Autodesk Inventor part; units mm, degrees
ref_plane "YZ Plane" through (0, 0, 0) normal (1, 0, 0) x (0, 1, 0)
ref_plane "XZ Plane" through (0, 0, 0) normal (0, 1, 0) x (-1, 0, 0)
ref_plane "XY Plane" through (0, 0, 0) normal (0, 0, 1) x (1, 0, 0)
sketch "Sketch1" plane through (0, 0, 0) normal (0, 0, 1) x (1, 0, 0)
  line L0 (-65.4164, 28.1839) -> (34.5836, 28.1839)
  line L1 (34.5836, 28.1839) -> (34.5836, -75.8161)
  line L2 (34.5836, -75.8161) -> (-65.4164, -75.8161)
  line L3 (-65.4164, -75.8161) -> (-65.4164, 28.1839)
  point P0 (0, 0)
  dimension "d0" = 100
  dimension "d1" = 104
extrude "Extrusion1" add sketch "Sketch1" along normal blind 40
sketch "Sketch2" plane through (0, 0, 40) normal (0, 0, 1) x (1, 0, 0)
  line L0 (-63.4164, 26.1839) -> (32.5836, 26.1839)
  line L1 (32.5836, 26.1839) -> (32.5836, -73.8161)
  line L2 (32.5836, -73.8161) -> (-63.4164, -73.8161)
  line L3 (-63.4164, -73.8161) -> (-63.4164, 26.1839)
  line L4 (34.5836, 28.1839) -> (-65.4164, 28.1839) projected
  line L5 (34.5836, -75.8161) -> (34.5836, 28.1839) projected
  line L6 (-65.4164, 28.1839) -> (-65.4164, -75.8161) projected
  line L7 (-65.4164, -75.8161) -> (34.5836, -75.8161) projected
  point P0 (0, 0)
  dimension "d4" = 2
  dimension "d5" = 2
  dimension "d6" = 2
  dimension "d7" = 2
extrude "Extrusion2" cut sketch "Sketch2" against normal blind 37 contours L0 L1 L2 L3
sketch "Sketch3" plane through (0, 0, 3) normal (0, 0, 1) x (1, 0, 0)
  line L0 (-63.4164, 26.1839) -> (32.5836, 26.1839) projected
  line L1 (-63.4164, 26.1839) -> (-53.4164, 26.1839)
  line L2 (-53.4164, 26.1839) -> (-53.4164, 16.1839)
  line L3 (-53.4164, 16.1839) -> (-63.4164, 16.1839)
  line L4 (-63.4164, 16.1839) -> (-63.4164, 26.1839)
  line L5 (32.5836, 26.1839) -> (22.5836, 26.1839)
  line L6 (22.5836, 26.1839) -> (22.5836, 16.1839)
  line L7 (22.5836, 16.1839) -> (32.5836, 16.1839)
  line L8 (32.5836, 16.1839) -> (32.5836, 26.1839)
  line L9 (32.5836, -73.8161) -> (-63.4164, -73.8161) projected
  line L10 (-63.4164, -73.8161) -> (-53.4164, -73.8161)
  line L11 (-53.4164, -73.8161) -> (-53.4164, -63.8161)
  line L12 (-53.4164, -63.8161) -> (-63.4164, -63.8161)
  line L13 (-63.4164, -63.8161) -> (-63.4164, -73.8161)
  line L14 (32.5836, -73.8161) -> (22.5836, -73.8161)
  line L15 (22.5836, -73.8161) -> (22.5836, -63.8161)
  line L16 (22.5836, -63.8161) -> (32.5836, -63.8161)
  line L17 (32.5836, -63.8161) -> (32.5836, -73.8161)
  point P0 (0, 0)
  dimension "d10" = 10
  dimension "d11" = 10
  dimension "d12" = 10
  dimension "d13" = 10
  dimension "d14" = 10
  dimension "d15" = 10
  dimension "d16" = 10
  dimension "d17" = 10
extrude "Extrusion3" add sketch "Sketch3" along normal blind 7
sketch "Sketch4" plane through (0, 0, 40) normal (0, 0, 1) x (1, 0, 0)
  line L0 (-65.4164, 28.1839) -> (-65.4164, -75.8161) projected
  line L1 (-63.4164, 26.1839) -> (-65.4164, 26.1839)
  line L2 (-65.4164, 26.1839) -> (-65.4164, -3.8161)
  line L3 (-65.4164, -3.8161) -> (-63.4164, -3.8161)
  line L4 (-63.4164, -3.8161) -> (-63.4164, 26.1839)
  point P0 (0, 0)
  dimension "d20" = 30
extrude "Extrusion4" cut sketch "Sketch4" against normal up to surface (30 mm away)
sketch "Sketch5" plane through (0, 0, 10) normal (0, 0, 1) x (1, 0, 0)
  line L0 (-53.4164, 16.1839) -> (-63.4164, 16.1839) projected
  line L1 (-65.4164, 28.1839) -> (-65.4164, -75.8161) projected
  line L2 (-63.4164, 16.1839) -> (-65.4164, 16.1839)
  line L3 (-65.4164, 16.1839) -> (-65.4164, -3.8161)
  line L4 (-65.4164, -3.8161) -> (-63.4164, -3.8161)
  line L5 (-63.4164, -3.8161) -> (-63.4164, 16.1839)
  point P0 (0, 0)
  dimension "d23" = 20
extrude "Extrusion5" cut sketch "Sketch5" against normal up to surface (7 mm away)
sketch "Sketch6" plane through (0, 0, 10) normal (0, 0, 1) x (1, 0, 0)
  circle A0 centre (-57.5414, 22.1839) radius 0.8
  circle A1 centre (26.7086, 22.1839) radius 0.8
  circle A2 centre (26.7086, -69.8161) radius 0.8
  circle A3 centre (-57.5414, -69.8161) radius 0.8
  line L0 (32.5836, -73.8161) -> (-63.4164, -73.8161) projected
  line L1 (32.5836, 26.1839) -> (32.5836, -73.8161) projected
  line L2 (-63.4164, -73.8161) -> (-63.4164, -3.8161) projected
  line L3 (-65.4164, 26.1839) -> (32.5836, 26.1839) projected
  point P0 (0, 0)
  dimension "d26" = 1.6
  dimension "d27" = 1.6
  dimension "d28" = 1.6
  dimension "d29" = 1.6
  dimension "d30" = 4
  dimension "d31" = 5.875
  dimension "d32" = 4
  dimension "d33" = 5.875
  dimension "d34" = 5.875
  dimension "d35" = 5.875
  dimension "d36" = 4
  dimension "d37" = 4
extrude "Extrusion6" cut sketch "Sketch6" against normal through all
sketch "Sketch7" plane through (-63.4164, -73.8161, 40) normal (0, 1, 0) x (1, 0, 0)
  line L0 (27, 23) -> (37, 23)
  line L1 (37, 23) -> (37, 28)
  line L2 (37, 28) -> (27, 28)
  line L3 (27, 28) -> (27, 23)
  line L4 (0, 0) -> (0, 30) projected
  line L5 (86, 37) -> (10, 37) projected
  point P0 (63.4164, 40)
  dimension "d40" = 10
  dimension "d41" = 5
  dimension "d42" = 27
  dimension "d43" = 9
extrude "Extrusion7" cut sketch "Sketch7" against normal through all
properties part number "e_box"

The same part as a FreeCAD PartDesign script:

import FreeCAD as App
import Part
import Sketcher

V = App.Vector
Q = App.Units.Quantity


def add_polygon(sketch, points):
    """Adds a closed chain of lines whose ends are joined by coincident constraints."""
    first, n = sketch.GeometryCount, len(points)
    for a, b in zip(points, points[1:] + points[:1]):
        sketch.addGeometry(Part.LineSegment(App.Vector(*a, 0), App.Vector(*b, 0)), False)
    for i in range(n):
        sketch.addConstraint(Sketcher.Constraint("Coincident", first + i, 2, first + (i + 1) % n, 1))

doc = App.newDocument("Part")
body = doc.addObject("PartDesign::Body", "Body")

sketch1 = doc.addObject("Sketcher::SketchObject", "Sketch")
body.addObject(sketch1)
sketch1.AttachmentSupport = (doc.XY_Plane, [""])
sketch1.MapMode = "FlatFace"
add_polygon(sketch1, [(34.5836, 28.1839), (-65.4164, 28.1839), (-65.4164, -75.8161), (34.5836, -75.8161)])
sketch1.addConstraint([
    Sketcher.Constraint("Horizontal", 0),
    Sketcher.Constraint("Vertical", 1),
    Sketcher.Constraint("Horizontal", 2),
    Sketcher.Constraint("Vertical", 3),
    Sketcher.Constraint("DistanceX", 0, 2, 0, 1, Q("100 mm")),
    Sketcher.Constraint("DistanceY", 1, 2, 1, 1, Q("104 mm")),
    Sketcher.Constraint("DistanceY", -1, 1, 0, 2, Q("28.184 mm")),
    Sketcher.Constraint("DistanceX", 0, 2, -1, 1, Q("65.4164 mm")),
])
pad1 = doc.addObject("PartDesign::Pad", "Pad")
body.addObject(pad1)
pad1.Profile = sketch1
pad1.Length = 40

sketch2 = doc.addObject("Sketcher::SketchObject", "Sketch001")
body.addObject(sketch2)
sketch2.AttachmentSupport = (doc.XY_Plane, [""])
sketch2.MapMode = "FlatFace"
sketch2.AttachmentOffset = App.Placement(V(0, 0, 40), App.Rotation())
add_polygon(sketch2, [(32.5836, 26.1839), (-63.4164, 26.1839), (-63.4164, -73.8161), (32.5836, -73.8161)])
sketch2.addConstraint([
    Sketcher.Constraint("Horizontal", 0),
    Sketcher.Constraint("Vertical", 1),
    Sketcher.Constraint("Horizontal", 2),
    Sketcher.Constraint("Vertical", 3),
    Sketcher.Constraint("DistanceX", 0, 2, 0, 1, Q("96 mm")),
    Sketcher.Constraint("DistanceY", 1, 2, 1, 1, Q("100 mm")),
    Sketcher.Constraint("DistanceY", -1, 1, 0, 2, Q("26.184 mm")),
    Sketcher.Constraint("DistanceX", 0, 2, -1, 1, Q("63.4164 mm")),
])
pocket1 = doc.addObject("PartDesign::Pocket", "Pocket")
body.addObject(pocket1)
pocket1.Profile = sketch2
pocket1.Length = 37

sketch3 = doc.addObject("Sketcher::SketchObject", "Sketch002")
body.addObject(sketch3)
sketch3.AttachmentSupport = (doc.XY_Plane, [""])
sketch3.MapMode = "FlatFace"
sketch3.AttachmentOffset = App.Placement(V(0, 0, 3), App.Rotation())
add_polygon(sketch3, [(32.5836, 26.1839), (22.5836, 26.1839), (22.5836, 16.1839), (32.5836, 16.1839)])
add_polygon(sketch3, [(-53.4164, 26.1839), (-63.4164, 26.1839), (-63.4164, 16.1839), (-53.4164, 16.1839)])
add_polygon(sketch3, [(-63.4164, -73.8161), (-53.4164, -73.8161), (-53.4164, -63.8161), (-63.4164, -63.8161)])
add_polygon(sketch3, [(22.5836, -73.8161), (32.5836, -73.8161), (32.5836, -63.8161), (22.5836, -63.8161)])
sketch3.addConstraint([
    Sketcher.Constraint("Horizontal", 0),
    Sketcher.Constraint("Vertical", 1),
    Sketcher.Constraint("Horizontal", 2),
    Sketcher.Constraint("Vertical", 3),
    Sketcher.Constraint("Horizontal", 4),
    Sketcher.Constraint("Vertical", 5),
    Sketcher.Constraint("Horizontal", 6),
    Sketcher.Constraint("Vertical", 7),
    Sketcher.Constraint("Horizontal", 8),
    Sketcher.Constraint("Vertical", 9),
    Sketcher.Constraint("Horizontal", 10),
    Sketcher.Constraint("Vertical", 11),
    Sketcher.Constraint("Horizontal", 12),
    Sketcher.Constraint("Vertical", 13),
    Sketcher.Constraint("Horizontal", 14),
    Sketcher.Constraint("Vertical", 15),
    Sketcher.Constraint("Horizontal", 3, 2, 4, 2),
    Sketcher.Constraint("Horizontal", 2, 2, 5, 2),
    Sketcher.Constraint("Horizontal", 11, 2, 12, 2),
    Sketcher.Constraint("Horizontal", 10, 2, 13, 2),
    Sketcher.Constraint("Vertical", 7, 2, 8, 2),
    Sketcher.Constraint("Vertical", 5, 2, 10, 2),
    Sketcher.Constraint("Vertical", 3, 2, 12, 2),
    Sketcher.Constraint("Vertical", 1, 2, 14, 2),
    Sketcher.Constraint("Equal", 2, 4),
    Sketcher.Constraint("Equal", 14, 1),
    Sketcher.Constraint("Equal", 7, 9),
    Sketcher.Constraint("DistanceX", 0, 2, 0, 1, Q("10 mm")),
    Sketcher.Constraint("DistanceX", 4, 2, 0, 2, Q("86 mm")),
    Sketcher.Constraint("DistanceY", 8, 2, 6, 2, Q("90 mm")),
    Sketcher.Constraint("DistanceY", -1, 1, 0, 2, Q("26.184 mm")),
    Sketcher.Constraint("DistanceX", -1, 1, 0, 2, Q("22.5836 mm")),
])
pad2 = doc.addObject("PartDesign::Pad", "Pad001")
body.addObject(pad2)
pad2.Profile = sketch3
pad2.Length = 7

sketch4 = doc.addObject("Sketcher::SketchObject", "Sketch003")
body.addObject(sketch4)
sketch4.AttachmentSupport = (doc.XY_Plane, [""])
sketch4.MapMode = "FlatFace"
sketch4.AttachmentOffset = App.Placement(V(0, 0, 40), App.Rotation())
add_polygon(sketch4, [(-63.4164, 26.1839), (-65.4164, 26.1839), (-65.4164, -3.8161), (-63.4164, -3.8161)])
sketch4.addConstraint([
    Sketcher.Constraint("Horizontal", 0),
    Sketcher.Constraint("Vertical", 1),
    Sketcher.Constraint("Horizontal", 2),
    Sketcher.Constraint("Vertical", 3),
    Sketcher.Constraint("DistanceY", 1, 2, 1, 1, Q("30 mm")),
    Sketcher.Constraint("DistanceX", 0, 2, 0, 1, Q("2 mm")),
    Sketcher.Constraint("DistanceY", -1, 1, 0, 2, Q("26.184 mm")),
    Sketcher.Constraint("DistanceX", 0, 2, -1, 1, Q("65.4164 mm")),
])
pocket2 = doc.addObject("PartDesign::Pocket", "Pocket001")
body.addObject(pocket2)
pocket2.Profile = sketch4
pocket2.Length = 30

sketch5 = doc.addObject("Sketcher::SketchObject", "Sketch004")
body.addObject(sketch5)
sketch5.AttachmentSupport = (doc.XY_Plane, [""])
sketch5.MapMode = "FlatFace"
sketch5.AttachmentOffset = App.Placement(V(0, 0, 10), App.Rotation())
add_polygon(sketch5, [(-63.4164, 16.1839), (-65.4164, 16.1839), (-65.4164, -3.8161), (-63.4164, -3.8161)])
sketch5.addConstraint([
    Sketcher.Constraint("Horizontal", 0),
    Sketcher.Constraint("Vertical", 1),
    Sketcher.Constraint("Horizontal", 2),
    Sketcher.Constraint("Vertical", 3),
    Sketcher.Constraint("DistanceY", 1, 2, 1, 1, Q("20 mm")),
    Sketcher.Constraint("DistanceX", 0, 2, 0, 1, Q("2 mm")),
    Sketcher.Constraint("DistanceY", -1, 1, 0, 2, Q("16.184 mm")),
    Sketcher.Constraint("DistanceX", 0, 2, -1, 1, Q("65.4164 mm")),
])
pocket3 = doc.addObject("PartDesign::Pocket", "Pocket002")
body.addObject(pocket3)
pocket3.Profile = sketch5
pocket3.Length = 7

sketch6 = doc.addObject("Sketcher::SketchObject", "Sketch005")
body.addObject(sketch6)
sketch6.AttachmentSupport = (doc.XY_Plane, [""])
sketch6.MapMode = "FlatFace"
sketch6.AttachmentOffset = App.Placement(V(0, 0, 10), App.Rotation())
sketch6.addGeometry([
    Part.Circle(V(-57.5414, 22.1839, 0), V(0, 0, 1), 0.8),
    Part.Circle(V(26.7086, 22.1839, 0), V(0, 0, 1), 0.8),
    Part.Circle(V(26.7086, -69.8161, 0), V(0, 0, 1), 0.8),
    Part.Circle(V(-57.5414, -69.8161, 0), V(0, 0, 1), 0.8),
], False)
sketch6.addConstraint([
    Sketcher.Constraint("Equal", 0, 1),
    Sketcher.Constraint("Equal", 1, 2),
    Sketcher.Constraint("Equal", 2, 3),
    Sketcher.Constraint("Horizontal", 0, 3, 1, 3),
    Sketcher.Constraint("Horizontal", 2, 3, 3, 3),
    Sketcher.Constraint("Vertical", 1, 3, 2, 3),
    Sketcher.Constraint("Vertical", 0, 3, 3, 3),
    Sketcher.Constraint("Diameter", 0, Q("1.6 mm")),
    Sketcher.Constraint("DistanceY", 2, 3, 1, 3, Q("92 mm")),
    Sketcher.Constraint("DistanceX", 0, 3, 1, 3, Q("84.25 mm")),
    Sketcher.Constraint("DistanceY", -1, 1, 0, 3, Q("22.184 mm")),
    Sketcher.Constraint("DistanceX", 0, 3, -1, 1, Q("57.5414 mm")),
])
pocket4 = doc.addObject("PartDesign::Pocket", "Pocket003")
body.addObject(pocket4)
pocket4.Profile = sketch6
pocket4.Type = "ThroughAll"

sketch7 = doc.addObject("Sketcher::SketchObject", "Sketch006")
body.addObject(sketch7)
sketch7.AttachmentSupport = (doc.XZ_Plane, [""])
sketch7.MapMode = "FlatFace"
sketch7.AttachmentOffset = App.Placement(V(0, 0, 73.8161), App.Rotation())
add_polygon(sketch7, [(-36.4164, 12), (-36.4164, 17), (-26.4164, 17), (-26.4164, 12)])
sketch7.addConstraint([
    Sketcher.Constraint("Vertical", 0),
    Sketcher.Constraint("Horizontal", 1),
    Sketcher.Constraint("Vertical", 2),
    Sketcher.Constraint("Horizontal", 3),
    Sketcher.Constraint("DistanceX", 1, 1, 1, 2, Q("10 mm")),
    Sketcher.Constraint("DistanceY", 0, 1, 0, 2, Q("5 mm")),
    Sketcher.Constraint("DistanceY", -1, 1, 0, 2, Q("17 mm")),
    Sketcher.Constraint("DistanceX", 0, 2, -1, 1, Q("36.4164 mm")),
])
pocket5 = doc.addObject("PartDesign::Pocket", "Pocket004")
body.addObject(pocket5)
pocket5.Profile = sketch7
pocket5.Type = "ThroughAll"
pocket5.Reversed = True

doc.recompute()
